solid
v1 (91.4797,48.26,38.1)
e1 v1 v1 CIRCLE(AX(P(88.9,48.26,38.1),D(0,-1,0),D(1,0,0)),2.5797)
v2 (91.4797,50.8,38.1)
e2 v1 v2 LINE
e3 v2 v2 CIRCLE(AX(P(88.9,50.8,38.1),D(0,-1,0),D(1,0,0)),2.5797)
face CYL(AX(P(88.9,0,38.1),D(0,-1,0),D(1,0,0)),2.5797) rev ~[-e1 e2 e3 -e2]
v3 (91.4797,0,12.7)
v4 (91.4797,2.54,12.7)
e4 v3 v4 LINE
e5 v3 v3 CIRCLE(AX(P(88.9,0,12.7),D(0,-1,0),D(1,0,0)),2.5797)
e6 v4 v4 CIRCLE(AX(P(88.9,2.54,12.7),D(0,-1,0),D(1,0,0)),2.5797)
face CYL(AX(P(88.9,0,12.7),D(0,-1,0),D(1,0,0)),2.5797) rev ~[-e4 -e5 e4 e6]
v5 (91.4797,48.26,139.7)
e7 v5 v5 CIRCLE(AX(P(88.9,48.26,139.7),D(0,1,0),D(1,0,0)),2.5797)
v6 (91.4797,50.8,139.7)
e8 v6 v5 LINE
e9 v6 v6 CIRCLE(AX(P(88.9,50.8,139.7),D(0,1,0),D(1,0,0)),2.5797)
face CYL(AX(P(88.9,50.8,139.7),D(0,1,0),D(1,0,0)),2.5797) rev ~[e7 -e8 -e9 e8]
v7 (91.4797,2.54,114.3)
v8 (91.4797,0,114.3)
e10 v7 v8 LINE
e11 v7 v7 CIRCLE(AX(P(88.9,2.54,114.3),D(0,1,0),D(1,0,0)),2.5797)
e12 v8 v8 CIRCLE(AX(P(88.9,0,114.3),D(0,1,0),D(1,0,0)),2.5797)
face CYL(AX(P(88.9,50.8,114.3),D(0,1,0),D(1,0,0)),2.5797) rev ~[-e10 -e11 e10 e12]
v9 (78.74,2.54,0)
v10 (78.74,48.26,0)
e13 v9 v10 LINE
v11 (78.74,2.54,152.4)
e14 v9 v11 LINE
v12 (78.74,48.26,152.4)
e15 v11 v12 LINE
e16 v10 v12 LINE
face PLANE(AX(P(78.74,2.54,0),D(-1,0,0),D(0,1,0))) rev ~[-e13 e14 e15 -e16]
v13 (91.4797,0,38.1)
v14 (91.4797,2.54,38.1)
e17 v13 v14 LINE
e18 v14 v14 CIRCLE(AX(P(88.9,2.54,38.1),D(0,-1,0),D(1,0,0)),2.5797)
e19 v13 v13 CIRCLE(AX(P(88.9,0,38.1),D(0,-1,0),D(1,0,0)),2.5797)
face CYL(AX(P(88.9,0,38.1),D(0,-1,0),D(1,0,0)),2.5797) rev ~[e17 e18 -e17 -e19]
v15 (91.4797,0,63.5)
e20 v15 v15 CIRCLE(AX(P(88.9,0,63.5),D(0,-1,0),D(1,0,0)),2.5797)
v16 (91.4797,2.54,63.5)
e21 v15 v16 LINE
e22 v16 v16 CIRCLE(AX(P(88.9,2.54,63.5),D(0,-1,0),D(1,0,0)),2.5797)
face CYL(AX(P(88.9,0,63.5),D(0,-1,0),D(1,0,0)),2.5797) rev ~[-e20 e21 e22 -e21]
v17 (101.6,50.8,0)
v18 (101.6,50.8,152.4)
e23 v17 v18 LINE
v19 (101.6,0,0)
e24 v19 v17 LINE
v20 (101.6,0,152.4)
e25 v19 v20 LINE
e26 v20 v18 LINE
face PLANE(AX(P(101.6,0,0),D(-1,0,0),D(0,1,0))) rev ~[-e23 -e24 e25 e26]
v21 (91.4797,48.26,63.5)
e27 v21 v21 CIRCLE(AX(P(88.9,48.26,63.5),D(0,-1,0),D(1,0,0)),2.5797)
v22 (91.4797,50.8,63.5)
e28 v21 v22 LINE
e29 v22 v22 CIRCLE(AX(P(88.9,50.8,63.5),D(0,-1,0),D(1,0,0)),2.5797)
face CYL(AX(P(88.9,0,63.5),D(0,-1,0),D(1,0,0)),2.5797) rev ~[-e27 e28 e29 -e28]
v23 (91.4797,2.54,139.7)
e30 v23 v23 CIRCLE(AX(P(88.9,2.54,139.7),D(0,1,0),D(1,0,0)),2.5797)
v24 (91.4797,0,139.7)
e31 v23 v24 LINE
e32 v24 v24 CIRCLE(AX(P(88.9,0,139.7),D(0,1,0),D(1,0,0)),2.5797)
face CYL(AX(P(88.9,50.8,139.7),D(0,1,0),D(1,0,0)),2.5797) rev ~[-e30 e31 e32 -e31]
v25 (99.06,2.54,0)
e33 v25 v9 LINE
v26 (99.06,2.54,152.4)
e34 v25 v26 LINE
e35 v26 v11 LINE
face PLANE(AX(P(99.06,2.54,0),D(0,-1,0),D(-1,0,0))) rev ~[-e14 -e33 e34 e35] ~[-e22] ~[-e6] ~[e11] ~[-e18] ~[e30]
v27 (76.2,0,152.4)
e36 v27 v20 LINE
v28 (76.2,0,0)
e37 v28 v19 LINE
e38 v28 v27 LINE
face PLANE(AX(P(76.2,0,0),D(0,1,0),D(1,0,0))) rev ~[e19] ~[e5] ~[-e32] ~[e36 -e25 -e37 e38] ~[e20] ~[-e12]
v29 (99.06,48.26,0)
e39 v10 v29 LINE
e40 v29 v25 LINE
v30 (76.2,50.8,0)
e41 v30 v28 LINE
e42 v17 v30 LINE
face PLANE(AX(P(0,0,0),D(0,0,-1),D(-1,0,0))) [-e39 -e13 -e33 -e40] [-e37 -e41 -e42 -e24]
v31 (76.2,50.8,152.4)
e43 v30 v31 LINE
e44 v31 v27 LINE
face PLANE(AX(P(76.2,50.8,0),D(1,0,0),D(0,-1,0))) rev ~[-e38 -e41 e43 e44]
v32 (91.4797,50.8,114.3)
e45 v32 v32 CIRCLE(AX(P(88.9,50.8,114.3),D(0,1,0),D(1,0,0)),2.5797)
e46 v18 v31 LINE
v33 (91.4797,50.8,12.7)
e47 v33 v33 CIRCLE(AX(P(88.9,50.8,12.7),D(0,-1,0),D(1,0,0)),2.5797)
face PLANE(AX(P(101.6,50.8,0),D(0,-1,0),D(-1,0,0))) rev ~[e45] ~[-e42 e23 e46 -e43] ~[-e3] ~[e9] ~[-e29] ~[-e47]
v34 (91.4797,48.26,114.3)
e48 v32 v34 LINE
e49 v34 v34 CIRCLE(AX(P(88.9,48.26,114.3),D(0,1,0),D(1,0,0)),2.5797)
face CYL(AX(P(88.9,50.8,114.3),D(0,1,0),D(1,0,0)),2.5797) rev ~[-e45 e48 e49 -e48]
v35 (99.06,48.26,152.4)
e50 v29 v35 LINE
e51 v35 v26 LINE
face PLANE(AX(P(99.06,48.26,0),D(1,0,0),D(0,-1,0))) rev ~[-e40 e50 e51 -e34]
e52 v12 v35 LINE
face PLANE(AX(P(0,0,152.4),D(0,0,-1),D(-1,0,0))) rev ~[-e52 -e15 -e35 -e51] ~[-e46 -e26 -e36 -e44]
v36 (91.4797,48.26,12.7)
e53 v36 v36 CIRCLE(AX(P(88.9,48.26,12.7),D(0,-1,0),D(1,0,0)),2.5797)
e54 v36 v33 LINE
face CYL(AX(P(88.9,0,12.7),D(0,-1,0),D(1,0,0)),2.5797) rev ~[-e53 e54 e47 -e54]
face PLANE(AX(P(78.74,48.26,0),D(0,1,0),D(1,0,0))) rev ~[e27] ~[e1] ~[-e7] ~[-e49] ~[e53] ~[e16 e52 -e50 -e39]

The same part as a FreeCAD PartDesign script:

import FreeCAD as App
import Part
import Sketcher

V = App.Vector
Q = App.Units.Quantity


def add_polygon(sketch, points):
    """Adds a closed chain of lines whose ends are joined by coincident constraints."""
    first, n = sketch.GeometryCount, len(points)
    for a, b in zip(points, points[1:] + points[:1]):
        sketch.addGeometry(Part.LineSegment(App.Vector(*a, 0), App.Vector(*b, 0)), False)
    for i in range(n):
        sketch.addConstraint(Sketcher.Constraint("Coincident", first + i, 2, first + (i + 1) % n, 1))

doc = App.newDocument("Part")
params = doc.addObject("Spreadsheet::Sheet", "Params")
for row, (alias, value) in enumerate([
    ("sketch1_width", "1 in"),
    ("sketch1_height", "2 in"),
    ("pad1_length", "6 in"),
    ("sketch2_diameter", "0.203126 in"),
    ("pocket1_length", "3 in"),
    ("sketch3_diameter", "0.203126 in"),
    ("pocket2_length", "2 in"),
], start=1):
    params.set(f"A{row}", alias)
    params.set(f"B{row}", "=" + value)
    params.setAlias(f"B{row}", alias)

body = doc.addObject("PartDesign::Body", "Body")

# Sketch on XY plane
sketch1 = doc.addObject("Sketcher::SketchObject", "Sketch")
body.addObject(sketch1)
sketch1.AttachmentSupport = (doc.XY_Plane, [""])
sketch1.MapMode = "FlatFace"
add_polygon(sketch1, [(102, 0), (76, 0), (76, 51), (102, 51)])  # lines 0-3
add_polygon(sketch1, [(99, 48), (79, 48), (79, 3), (99, 3)])  # lines 4-7
sketch1.addConstraint([
    Sketcher.Constraint("Horizontal", 0),
    Sketcher.Constraint("Vertical", 1),
    Sketcher.Constraint("Horizontal", 2),
    Sketcher.Constraint("Vertical", 3),
    Sketcher.Constraint("Horizontal", 4),
    Sketcher.Constraint("Vertical", 5),
    Sketcher.Constraint("Horizontal", 6),
    Sketcher.Constraint("Vertical", 7),
    Sketcher.Constraint("PointOnObject", 0, 2, -1),
    Sketcher.Constraint("DistanceX", 0, 2, 0, 1, Q("1 in")),
    Sketcher.Constraint("DistanceY", 1, 1, 1, 2, Q("2 in")),
    Sketcher.Constraint("DistanceY", -1, 1, 5, 2, Q("0.1 in")),
    Sketcher.Constraint("DistanceX", 1, 2, 4, 2, Q("0.1 in")),
    Sketcher.Constraint("DistanceY", 4, 2, 1, 2, Q("0.1 in")),
    Sketcher.Constraint("DistanceX", 6, 2, 3, 2, Q("0.1 in")),
    Sketcher.Constraint("DistanceX", -1, 1, 0, 2, Q("3 in")),
])
sketch1.setExpression("Constraints[17]", "Params.sketch1_width")
sketch1.setExpression("Constraints[18]", "Params.sketch1_height")
pad1 = doc.addObject("PartDesign::Pad", "Pad")
body.addObject(pad1)
pad1.Profile = sketch1
pad1.setExpression("Length", "Params.pad1_length")

# Sketch on XZ plane
sketch2 = doc.addObject("Sketcher::SketchObject", "Sketch001")
body.addObject(sketch2)
sketch2.AttachmentSupport = (doc.XZ_Plane, [""])
sketch2.MapMode = "FlatFace"
sketch2.addGeometry([
    Part.Circle(V(88.9, 12.7, 0), V(0, 0, 1), 2.6),  # 0
    Part.Circle(V(63.5, 12.7, 0), V(0, 0, 1), 2.6),  # 1
    Part.Circle(V(38.1, 12.7, 0), V(0, 0, 1), 2.6),  # 2
    Part.Circle(V(88.9, 38.1, 0), V(0, 0, 1), 2.6),  # 3
    Part.Circle(V(88.9, 63.5, 0), V(0, 0, 1), 2.6),  # 4
], False)
sketch2.addConstraint([
    Sketcher.Constraint("Equal", 0, 1),
    Sketcher.Constraint("Equal", 1, 2),
    Sketcher.Constraint("Equal", 2, 3),
    Sketcher.Constraint("Equal", 3, 4),
    Sketcher.Constraint("Horizontal", 0, 3, 1, 3),
    Sketcher.Constraint("Horizontal", 1, 3, 2, 3),
    Sketcher.Constraint("Vertical", 0, 3, 3, 3),
    Sketcher.Constraint("Vertical", 3, 3, 4, 3),
    Sketcher.Constraint("Diameter", 0, Q("0.203126 in")),
    Sketcher.Constraint("DistanceX", 1, 3, 0, 3, Q("1 in")),
    Sketcher.Constraint("DistanceX", 2, 3, 1, 3, Q("1 in")),
    Sketcher.Constraint("DistanceY", 0, 3, 3, 3, Q("1 in")),
    Sketcher.Constraint("DistanceY", 3, 3, 4, 3, Q("1 in")),
    Sketcher.Constraint("DistanceY", -1, 1, 0, 3, Q("0.5 in")),
    Sketcher.Constraint("DistanceX", -1, 1, 0, 3, Q("3.5 in")),
])
sketch2.setExpression("Constraints[8]", "Params.sketch2_diameter")
pocket1 = doc.addObject("PartDesign::Pocket", "Pocket")
body.addObject(pocket1)
pocket1.Profile = sketch2
pocket1.setExpression("Length", "Params.pocket1_length")

# Sketch on XZ plane
sketch3 = doc.addObject("Sketcher::SketchObject", "Sketch002")
body.addObject(sketch3)
sketch3.AttachmentSupport = (doc.XZ_Plane, [""])
sketch3.MapMode = "FlatFace"
sketch3.AttachmentOffset = App.Placement(V(0, 0, -2 * 25.4), App.Rotation())
sketch3.addGeometry([
    Part.Circle(V(88.9, 139.7, 0), V(0, 0, 1), 2.6),
    Part.Circle(V(88.9, 114.3, 0), V(0, 0, 1), 2.6),
], False)
sketch3.addConstraint([
    Sketcher.Constraint("Equal", 0, 1),
    Sketcher.Constraint("Vertical", 0, 3, 1, 3),
    Sketcher.Constraint("Diameter", 0, Q("0.203126 in")),
    Sketcher.Constraint("DistanceY", 1, 3, 0, 3, Q("1 in")),
    Sketcher.Constraint("DistanceX", -1, 1, 0, 3, Q("3.5 in")),
    Sketcher.Constraint("DistanceY", -1, 1, 0, 3, Q("5.5 in")),
])
sketch3.setExpression("Constraints[2]", "Params.sketch3_diameter")
pocket2 = doc.addObject("PartDesign::Pocket", "Pocket001")
body.addObject(pocket2)
pocket2.Profile = sketch3
pocket2.setExpression("Length", "Params.pocket2_length")
pocket2.Reversed = True

doc.recompute()
